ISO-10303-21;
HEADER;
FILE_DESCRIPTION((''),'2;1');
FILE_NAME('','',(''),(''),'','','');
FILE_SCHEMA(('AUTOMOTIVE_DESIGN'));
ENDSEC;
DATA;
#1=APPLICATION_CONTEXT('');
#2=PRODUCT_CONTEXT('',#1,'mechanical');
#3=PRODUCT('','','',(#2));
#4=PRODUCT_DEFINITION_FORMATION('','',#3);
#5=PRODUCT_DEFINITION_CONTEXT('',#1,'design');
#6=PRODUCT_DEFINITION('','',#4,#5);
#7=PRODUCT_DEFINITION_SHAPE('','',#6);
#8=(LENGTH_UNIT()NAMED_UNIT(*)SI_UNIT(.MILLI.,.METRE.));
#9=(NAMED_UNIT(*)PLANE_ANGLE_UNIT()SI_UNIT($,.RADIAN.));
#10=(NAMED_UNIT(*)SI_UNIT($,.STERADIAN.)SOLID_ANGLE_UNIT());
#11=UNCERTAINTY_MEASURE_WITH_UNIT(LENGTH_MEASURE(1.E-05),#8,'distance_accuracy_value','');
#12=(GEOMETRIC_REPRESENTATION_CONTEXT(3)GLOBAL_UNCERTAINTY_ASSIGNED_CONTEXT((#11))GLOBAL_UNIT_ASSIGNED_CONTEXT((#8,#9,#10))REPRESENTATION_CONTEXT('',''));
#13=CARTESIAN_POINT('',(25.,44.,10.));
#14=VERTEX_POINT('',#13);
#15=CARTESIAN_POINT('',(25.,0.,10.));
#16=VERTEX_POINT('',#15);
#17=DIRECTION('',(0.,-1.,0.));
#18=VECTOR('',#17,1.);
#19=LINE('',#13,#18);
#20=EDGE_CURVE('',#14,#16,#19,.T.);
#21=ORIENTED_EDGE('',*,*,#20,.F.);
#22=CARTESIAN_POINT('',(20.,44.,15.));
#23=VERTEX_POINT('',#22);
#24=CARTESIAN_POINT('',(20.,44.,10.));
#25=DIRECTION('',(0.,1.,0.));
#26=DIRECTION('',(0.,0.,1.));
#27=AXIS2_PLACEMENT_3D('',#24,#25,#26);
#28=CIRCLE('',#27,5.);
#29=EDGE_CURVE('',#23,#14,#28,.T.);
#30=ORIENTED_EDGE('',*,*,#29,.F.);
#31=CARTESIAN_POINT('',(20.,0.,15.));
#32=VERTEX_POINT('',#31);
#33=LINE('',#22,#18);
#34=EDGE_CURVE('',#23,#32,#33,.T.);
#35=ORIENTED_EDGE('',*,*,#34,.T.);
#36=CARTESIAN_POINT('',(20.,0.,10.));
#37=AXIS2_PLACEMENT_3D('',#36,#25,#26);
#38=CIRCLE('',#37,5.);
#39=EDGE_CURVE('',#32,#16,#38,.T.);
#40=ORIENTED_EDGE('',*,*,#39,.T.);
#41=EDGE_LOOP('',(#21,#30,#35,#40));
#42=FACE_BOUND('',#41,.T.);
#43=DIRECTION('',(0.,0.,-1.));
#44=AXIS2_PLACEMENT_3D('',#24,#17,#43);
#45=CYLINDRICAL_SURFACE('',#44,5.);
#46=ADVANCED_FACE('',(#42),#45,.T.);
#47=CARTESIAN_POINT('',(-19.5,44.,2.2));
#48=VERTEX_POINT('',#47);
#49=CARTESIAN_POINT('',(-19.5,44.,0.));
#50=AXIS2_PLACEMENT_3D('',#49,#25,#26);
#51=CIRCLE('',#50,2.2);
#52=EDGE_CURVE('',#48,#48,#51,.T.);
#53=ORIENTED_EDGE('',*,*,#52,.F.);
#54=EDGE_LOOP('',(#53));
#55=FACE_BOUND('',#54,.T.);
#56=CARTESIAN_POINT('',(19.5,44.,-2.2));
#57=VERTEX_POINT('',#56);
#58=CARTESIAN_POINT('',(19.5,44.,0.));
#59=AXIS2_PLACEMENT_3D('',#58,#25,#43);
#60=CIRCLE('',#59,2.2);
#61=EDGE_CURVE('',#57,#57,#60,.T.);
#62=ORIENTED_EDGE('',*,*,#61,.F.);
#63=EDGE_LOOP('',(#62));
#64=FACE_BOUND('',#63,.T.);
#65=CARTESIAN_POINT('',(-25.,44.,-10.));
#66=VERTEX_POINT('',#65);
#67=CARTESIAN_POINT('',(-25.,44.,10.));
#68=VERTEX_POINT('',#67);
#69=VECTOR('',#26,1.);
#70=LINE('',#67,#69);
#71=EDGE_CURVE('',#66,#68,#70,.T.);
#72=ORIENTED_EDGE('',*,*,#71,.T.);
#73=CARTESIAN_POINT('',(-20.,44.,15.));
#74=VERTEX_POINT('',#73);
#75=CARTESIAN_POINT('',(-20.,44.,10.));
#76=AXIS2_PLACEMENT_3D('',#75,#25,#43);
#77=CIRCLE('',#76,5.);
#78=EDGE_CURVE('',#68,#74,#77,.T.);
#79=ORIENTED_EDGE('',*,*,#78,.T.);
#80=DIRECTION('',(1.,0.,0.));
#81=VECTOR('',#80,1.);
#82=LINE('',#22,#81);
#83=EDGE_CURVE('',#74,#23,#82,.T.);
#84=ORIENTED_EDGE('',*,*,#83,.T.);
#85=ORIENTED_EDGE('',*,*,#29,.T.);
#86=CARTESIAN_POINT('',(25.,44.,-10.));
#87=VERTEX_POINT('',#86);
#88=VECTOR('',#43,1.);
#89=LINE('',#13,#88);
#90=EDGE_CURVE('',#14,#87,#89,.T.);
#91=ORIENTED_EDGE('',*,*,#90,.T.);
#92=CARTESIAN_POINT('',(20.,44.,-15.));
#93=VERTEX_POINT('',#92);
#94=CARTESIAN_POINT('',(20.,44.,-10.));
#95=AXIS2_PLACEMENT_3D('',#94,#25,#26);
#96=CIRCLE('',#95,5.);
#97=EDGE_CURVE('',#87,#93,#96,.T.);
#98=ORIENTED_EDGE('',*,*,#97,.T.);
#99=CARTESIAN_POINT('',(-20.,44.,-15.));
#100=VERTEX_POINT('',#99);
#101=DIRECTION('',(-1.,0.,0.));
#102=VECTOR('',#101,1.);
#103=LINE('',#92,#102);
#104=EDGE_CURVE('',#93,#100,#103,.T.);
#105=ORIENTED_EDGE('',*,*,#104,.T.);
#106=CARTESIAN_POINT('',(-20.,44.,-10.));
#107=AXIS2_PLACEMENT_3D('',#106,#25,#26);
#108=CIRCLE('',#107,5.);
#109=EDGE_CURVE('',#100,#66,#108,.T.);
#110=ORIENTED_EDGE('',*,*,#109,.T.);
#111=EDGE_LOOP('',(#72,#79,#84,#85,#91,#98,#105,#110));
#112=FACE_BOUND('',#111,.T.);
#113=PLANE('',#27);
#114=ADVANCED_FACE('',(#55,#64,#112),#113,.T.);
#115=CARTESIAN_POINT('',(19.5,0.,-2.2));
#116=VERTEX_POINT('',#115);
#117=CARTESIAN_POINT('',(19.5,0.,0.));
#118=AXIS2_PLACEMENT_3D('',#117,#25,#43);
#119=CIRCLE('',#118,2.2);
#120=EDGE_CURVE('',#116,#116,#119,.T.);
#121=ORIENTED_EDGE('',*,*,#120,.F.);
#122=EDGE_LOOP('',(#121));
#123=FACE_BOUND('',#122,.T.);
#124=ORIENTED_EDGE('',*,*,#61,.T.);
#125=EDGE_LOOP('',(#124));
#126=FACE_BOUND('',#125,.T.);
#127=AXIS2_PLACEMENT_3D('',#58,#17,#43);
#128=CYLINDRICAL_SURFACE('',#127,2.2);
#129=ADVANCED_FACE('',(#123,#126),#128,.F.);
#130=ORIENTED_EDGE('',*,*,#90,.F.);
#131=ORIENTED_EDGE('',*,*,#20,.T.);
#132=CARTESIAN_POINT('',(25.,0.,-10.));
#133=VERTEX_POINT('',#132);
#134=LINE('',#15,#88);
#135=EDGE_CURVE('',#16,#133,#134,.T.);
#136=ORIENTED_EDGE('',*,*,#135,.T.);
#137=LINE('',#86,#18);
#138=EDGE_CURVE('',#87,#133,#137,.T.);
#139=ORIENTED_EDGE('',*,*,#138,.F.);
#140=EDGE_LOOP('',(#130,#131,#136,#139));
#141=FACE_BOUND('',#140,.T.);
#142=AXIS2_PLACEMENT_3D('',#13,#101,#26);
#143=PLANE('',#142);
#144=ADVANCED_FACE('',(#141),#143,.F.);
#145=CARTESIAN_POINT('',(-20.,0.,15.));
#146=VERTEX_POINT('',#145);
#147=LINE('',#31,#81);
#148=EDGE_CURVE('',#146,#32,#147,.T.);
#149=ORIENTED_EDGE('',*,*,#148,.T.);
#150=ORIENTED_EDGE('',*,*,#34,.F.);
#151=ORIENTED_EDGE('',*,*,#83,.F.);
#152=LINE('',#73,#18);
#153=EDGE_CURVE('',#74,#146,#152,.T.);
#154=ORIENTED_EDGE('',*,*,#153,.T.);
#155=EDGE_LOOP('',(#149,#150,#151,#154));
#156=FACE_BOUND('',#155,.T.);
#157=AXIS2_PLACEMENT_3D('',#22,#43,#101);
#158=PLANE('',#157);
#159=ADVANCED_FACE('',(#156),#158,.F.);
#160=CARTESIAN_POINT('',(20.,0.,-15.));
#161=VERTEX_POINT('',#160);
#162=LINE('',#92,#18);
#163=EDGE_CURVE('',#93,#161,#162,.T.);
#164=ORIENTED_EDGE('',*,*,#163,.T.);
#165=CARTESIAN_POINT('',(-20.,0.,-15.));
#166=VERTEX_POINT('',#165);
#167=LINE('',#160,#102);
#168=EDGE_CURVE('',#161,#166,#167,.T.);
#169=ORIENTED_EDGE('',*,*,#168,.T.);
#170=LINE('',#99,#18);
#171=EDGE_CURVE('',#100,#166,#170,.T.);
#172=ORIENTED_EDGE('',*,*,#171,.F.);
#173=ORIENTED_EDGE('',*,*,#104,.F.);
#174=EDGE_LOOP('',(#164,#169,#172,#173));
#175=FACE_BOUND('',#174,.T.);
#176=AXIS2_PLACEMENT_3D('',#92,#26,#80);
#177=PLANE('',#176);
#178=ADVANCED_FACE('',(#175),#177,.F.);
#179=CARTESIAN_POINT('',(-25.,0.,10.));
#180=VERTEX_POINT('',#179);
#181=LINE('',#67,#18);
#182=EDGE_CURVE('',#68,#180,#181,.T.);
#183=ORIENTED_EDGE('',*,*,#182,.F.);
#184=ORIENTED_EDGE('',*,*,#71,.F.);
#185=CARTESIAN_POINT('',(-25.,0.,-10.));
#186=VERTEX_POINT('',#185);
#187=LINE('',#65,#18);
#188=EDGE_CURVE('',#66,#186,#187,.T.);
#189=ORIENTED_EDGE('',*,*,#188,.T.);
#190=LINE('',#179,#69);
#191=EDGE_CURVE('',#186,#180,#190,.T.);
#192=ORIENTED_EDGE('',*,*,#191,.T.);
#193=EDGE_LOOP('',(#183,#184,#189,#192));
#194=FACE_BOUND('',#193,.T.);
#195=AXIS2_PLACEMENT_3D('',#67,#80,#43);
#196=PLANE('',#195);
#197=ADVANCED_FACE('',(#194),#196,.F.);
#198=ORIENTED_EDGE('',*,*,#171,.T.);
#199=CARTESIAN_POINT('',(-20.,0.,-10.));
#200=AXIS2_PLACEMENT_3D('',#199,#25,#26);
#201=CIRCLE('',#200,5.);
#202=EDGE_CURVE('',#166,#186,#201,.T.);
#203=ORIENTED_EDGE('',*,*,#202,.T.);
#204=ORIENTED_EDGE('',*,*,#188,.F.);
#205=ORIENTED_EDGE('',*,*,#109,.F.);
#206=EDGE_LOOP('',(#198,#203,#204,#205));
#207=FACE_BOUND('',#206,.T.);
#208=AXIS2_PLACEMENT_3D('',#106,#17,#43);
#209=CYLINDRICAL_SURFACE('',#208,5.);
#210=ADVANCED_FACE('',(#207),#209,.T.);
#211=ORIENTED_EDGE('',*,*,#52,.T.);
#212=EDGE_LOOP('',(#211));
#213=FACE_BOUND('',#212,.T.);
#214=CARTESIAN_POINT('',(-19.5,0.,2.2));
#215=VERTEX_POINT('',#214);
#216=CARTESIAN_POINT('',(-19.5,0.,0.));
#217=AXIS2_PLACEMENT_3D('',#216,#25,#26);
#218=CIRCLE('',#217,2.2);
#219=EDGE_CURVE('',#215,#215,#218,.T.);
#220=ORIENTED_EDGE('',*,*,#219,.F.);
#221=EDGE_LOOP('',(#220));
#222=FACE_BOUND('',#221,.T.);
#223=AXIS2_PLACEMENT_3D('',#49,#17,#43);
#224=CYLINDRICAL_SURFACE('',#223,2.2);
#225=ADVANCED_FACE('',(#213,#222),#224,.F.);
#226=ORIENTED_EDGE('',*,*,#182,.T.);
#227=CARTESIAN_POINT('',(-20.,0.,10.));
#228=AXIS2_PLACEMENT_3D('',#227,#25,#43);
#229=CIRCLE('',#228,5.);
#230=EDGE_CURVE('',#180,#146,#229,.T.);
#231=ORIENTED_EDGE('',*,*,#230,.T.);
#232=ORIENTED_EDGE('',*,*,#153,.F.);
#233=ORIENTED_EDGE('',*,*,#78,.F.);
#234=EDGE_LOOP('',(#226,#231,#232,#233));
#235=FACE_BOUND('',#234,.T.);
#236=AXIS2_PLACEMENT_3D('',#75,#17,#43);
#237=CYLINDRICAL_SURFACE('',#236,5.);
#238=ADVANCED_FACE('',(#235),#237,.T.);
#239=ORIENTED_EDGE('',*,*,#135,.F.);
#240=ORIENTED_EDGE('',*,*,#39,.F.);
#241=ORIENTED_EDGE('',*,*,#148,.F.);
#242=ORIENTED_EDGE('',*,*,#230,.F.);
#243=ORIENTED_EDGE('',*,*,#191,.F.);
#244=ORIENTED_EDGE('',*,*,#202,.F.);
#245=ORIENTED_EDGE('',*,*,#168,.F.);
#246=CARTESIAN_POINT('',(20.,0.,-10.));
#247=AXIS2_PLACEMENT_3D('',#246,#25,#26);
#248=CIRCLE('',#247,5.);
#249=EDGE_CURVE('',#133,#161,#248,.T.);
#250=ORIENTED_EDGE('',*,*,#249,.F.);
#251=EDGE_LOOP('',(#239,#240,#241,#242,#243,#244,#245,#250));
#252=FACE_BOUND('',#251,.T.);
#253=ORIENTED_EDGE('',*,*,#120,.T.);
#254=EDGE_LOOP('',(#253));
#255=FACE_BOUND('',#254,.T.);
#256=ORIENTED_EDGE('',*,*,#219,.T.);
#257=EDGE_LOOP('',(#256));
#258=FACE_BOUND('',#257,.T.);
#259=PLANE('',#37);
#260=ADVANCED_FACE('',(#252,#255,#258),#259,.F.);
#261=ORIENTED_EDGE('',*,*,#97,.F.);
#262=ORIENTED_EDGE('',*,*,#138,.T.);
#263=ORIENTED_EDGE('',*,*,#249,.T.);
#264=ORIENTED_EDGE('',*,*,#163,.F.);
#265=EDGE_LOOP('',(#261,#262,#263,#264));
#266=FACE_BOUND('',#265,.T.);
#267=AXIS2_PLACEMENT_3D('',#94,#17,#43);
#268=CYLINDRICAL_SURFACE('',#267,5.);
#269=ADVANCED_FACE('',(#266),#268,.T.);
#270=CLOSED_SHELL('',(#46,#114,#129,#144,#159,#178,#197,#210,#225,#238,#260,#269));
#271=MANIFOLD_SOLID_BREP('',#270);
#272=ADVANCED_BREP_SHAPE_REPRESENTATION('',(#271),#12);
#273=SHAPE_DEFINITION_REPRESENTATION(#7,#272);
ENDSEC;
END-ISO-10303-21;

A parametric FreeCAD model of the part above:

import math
import FreeCAD as App
import Part
import Sketcher

V = App.Vector
Q = App.Units.Quantity

doc = App.newDocument("Part")
body = doc.addObject("PartDesign::Body", "Body")

# Sketch on XZ plane
sketch1 = body.newObject("Sketcher::SketchObject", "Sketch")
sketch1.AttachmentSupport = (doc.getObject("XZ_Plane"), [""])
sketch1.MapMode = "FlatFace"
sketch1.addGeometry(Part.LineSegment(V(-20, 15, 0), V(20, 15, 0)), False)
sketch1.addGeometry(Part.ArcOfCircle(Part.Circle(V(20, 10, 0), V(0, 0, 1), 5), math.radians(0), math.radians(90)), False)
sketch1.addGeometry(Part.LineSegment(V(25, 10, 0), V(25, -10, 0)), False)
sketch1.addGeometry(Part.ArcOfCircle(Part.Circle(V(20, -10, 0), V(0, 0, 1), 5), math.radians(-90), math.radians(0)), False)
sketch1.addGeometry(Part.LineSegment(V(20, -15, 0), V(-20, -15, 0)), False)
sketch1.addGeometry(Part.ArcOfCircle(Part.Circle(V(-20, -10, 0), V(0, 0, 1), 5), math.radians(180), math.radians(270)), False)
sketch1.addGeometry(Part.LineSegment(V(-25, -10, 0), V(-25, 10, 0)), False)
sketch1.addGeometry(Part.ArcOfCircle(Part.Circle(V(-20, 10, 0), V(0, 0, 1), 5), math.radians(90), math.radians(180)), False)
sketch1.addGeometry(Part.Circle(V(19.5, 0, 0), V(0, 0, 1), 2.2), False)
sketch1.addGeometry(Part.Circle(V(-19.5, 0, 0), V(0, 0, 1), 2.2), False)
sketch1.addConstraint(Sketcher.Constraint("Tangent", 0, 2, 1, 2))
sketch1.addConstraint(Sketcher.Constraint("Tangent", 1, 1, 2, 1))
sketch1.addConstraint(Sketcher.Constraint("Tangent", 2, 2, 3, 2))
sketch1.addConstraint(Sketcher.Constraint("Tangent", 3, 1, 4, 1))
sketch1.addConstraint(Sketcher.Constraint("Tangent", 4, 2, 5, 2))
sketch1.addConstraint(Sketcher.Constraint("Tangent", 5, 1, 6, 1))
sketch1.addConstraint(Sketcher.Constraint("Tangent", 6, 2, 7, 2))
sketch1.addConstraint(Sketcher.Constraint("Tangent", 7, 1, 0, 1))
sketch1.addConstraint(Sketcher.Constraint("Horizontal", 0))
sketch1.addConstraint(Sketcher.Constraint("Vertical", 2))
sketch1.addConstraint(Sketcher.Constraint("Horizontal", 4))
sketch1.addConstraint(Sketcher.Constraint("Vertical", 6))
sketch1.addConstraint(Sketcher.Constraint("Equal", 1, 3))
sketch1.addConstraint(Sketcher.Constraint("Equal", 3, 5))
sketch1.addConstraint(Sketcher.Constraint("Equal", 5, 7))
sketch1.addConstraint(Sketcher.Constraint("Equal", 8, 9))
sketch1.addConstraint(Sketcher.Constraint("Symmetric", 1, 3, 5, 3, -1, 1))
sketch1.addConstraint(Sketcher.Constraint("Symmetric", 8, 3, 9, 3, -1, 1))
sketch1.addConstraint(Sketcher.Constraint("PointOnObject", 8, 3, -1))
sketch1.addConstraint(Sketcher.Constraint("Radius", 1, Q("5 mm")))
sketch1.addConstraint(Sketcher.Constraint("Diameter", 8, Q("4.4 mm")))
sketch1.addConstraint(Sketcher.Constraint("DistanceX", 0, 1, 0, 2, Q("40 mm")))
sketch1.addConstraint(Sketcher.Constraint("DistanceY", 2, 2, 2, 1, Q("20 mm")))
sketch1.addConstraint(Sketcher.Constraint("DistanceX", 9, 3, 8, 3, Q("39 mm")))
pad1 = body.newObject("PartDesign::Pad", "Pad")
pad1.Profile = sketch1
pad1.Length = 44
pad1.Reversed = True

doc.recompute()
